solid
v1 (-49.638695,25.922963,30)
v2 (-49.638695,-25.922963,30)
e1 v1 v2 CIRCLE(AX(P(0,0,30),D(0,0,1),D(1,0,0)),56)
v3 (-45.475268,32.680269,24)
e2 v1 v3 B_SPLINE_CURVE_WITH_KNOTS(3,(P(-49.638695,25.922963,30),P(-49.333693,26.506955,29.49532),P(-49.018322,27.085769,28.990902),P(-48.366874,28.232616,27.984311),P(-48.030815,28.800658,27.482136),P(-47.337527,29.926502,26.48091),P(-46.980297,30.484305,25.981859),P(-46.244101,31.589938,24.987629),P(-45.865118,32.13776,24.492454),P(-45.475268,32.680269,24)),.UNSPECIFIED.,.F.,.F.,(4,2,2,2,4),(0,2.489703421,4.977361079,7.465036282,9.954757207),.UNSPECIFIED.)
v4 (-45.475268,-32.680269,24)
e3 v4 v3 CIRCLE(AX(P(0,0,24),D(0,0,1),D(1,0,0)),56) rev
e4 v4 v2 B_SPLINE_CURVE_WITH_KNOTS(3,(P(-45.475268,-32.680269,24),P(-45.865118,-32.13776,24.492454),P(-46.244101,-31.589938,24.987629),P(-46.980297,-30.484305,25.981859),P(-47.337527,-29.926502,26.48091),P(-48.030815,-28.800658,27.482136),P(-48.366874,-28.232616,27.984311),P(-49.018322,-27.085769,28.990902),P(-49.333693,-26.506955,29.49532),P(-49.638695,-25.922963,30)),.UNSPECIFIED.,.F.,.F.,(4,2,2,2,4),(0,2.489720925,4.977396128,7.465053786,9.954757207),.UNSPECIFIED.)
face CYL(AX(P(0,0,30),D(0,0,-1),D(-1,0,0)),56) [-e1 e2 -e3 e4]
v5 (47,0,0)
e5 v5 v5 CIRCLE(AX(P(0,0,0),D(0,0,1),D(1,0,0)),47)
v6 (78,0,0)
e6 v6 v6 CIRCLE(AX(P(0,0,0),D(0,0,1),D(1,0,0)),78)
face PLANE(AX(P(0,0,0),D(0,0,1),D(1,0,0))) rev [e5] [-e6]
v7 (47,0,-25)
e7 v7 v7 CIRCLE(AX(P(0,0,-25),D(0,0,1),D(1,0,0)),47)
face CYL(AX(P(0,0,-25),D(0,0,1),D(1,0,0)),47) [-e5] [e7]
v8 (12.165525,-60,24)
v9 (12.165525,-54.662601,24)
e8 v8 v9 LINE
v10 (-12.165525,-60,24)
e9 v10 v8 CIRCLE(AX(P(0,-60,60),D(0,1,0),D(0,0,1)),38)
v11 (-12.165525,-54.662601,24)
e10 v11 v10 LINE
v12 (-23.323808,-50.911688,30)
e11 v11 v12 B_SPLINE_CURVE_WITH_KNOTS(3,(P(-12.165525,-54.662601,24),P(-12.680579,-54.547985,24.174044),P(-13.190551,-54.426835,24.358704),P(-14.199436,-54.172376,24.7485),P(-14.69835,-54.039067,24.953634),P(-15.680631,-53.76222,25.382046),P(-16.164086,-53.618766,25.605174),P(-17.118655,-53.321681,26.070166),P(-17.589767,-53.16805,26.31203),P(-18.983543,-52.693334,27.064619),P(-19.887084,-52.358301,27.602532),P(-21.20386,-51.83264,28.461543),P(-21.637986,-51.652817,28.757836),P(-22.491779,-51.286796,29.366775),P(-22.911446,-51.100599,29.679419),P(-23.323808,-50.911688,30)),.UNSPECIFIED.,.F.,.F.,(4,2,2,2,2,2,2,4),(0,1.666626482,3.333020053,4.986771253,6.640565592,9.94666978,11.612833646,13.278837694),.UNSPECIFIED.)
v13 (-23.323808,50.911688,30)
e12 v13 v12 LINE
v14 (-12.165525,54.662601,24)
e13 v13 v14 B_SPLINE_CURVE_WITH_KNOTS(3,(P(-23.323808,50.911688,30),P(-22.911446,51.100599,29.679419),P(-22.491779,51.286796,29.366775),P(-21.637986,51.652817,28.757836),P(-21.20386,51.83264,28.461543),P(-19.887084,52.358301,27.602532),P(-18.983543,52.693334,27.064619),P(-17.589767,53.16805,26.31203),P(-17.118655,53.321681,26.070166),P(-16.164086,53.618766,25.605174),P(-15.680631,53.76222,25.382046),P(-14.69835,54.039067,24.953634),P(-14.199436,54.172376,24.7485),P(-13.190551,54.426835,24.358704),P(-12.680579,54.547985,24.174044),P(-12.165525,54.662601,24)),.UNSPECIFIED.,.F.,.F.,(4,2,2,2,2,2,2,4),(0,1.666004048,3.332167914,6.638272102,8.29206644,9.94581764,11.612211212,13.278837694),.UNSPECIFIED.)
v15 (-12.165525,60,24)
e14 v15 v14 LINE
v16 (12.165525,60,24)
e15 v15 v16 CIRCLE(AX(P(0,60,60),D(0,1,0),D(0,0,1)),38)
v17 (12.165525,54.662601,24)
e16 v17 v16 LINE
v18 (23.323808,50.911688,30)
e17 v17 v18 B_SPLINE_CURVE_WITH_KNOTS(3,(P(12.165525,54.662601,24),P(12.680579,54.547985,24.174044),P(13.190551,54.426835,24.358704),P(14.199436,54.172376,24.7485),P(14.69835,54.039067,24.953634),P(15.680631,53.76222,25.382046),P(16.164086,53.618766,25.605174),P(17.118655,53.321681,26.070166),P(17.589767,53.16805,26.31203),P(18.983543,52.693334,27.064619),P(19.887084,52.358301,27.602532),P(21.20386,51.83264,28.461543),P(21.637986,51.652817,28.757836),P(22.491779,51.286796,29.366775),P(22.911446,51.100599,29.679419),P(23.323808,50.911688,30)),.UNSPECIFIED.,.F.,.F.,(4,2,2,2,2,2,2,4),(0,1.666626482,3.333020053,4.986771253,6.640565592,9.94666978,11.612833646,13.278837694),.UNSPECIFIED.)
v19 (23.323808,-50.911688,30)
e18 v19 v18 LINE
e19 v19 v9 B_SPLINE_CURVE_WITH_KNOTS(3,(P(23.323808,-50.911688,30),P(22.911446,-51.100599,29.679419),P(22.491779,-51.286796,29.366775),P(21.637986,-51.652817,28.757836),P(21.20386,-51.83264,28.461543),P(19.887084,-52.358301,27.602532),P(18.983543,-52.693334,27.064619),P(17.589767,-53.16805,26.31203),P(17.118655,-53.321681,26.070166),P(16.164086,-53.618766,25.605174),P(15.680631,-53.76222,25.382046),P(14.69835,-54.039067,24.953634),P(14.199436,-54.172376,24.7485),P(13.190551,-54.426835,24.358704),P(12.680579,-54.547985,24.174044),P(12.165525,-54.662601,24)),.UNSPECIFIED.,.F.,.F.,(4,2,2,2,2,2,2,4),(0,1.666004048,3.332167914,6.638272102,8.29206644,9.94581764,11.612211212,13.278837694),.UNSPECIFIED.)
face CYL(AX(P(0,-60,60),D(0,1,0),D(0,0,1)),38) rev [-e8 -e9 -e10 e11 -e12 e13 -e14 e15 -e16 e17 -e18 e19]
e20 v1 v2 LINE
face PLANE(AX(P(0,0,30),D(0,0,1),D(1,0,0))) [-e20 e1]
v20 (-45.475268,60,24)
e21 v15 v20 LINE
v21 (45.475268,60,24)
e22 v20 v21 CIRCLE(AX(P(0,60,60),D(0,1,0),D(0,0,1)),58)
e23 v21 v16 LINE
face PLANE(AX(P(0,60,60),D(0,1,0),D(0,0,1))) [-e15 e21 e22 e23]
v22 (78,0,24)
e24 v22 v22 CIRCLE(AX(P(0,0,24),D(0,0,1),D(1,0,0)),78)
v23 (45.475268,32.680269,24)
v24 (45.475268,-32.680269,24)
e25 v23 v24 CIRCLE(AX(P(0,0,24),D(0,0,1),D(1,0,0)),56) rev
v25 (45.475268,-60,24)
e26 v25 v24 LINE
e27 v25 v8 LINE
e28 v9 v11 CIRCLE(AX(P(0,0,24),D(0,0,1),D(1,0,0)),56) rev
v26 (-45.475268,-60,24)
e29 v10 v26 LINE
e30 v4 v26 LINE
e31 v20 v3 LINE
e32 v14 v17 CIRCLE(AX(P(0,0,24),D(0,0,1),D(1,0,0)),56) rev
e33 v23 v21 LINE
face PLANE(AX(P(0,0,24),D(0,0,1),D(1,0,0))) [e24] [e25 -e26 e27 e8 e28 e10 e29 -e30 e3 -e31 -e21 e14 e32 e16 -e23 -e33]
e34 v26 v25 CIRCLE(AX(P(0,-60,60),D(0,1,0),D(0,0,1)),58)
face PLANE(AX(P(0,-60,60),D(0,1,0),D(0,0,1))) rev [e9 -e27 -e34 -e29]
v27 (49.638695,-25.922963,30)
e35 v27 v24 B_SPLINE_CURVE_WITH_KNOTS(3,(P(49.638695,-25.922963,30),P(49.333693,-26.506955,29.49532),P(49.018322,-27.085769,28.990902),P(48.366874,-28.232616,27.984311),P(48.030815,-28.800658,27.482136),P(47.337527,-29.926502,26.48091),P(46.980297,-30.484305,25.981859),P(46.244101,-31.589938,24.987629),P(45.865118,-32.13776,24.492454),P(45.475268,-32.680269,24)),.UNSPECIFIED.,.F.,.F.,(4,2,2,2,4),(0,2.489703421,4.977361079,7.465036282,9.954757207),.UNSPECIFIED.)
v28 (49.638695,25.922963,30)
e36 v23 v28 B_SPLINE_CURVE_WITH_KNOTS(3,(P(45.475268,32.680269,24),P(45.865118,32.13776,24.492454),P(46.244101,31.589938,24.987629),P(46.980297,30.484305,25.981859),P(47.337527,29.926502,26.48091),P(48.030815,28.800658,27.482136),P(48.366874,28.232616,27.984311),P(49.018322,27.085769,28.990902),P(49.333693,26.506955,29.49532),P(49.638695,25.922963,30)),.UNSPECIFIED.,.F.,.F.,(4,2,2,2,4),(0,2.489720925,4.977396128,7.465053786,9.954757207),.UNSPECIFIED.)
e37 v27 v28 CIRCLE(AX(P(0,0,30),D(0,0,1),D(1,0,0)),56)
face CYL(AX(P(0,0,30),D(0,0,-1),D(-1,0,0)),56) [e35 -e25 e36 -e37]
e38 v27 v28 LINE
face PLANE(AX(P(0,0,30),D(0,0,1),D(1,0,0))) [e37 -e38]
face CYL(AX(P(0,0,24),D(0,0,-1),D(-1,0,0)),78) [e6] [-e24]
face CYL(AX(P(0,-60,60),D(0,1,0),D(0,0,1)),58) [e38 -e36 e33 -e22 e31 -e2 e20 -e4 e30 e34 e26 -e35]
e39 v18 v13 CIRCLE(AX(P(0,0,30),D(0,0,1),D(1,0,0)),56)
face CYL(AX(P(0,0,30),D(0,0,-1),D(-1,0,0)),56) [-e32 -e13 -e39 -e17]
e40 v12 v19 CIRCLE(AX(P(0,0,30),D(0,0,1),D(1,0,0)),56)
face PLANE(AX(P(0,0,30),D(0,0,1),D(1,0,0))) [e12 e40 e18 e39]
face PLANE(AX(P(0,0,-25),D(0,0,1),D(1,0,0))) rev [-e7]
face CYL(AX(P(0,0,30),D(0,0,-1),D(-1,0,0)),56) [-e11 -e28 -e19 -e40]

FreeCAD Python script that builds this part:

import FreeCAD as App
import Part
import Sketcher
from FreeCAD import Vector
Q = App.Units.Quantity

doc = App.newDocument("Part")
params = doc.addObject("Spreadsheet::Sheet", "Params")
for row, (alias, value) in enumerate([
    ("sketch1_diameter", "94 mm"),
    ("pad1_length", "25 mm"),
    ("sketch2_diameter", "156 mm"),
    ("pad2_length", "24 mm"),
    ("sketch3_diameter", "112 mm"),
    ("pad3_length", "30 mm"),
    ("sketch4_diameter", "116 mm"),
    ("sketch4_diameter2", "76 mm"),
    ("pad4_length", "60 mm"),
    ("pad4_length2", "60 mm"),
], start=1):
    params.set(f"A{row}", alias)
    params.set(f"B{row}", "=" + value)
    params.setAlias(f"B{row}", alias)

body = doc.addObject("PartDesign::Body", "Body")

sketch1 = doc.addObject("Sketcher::SketchObject", "Sketch")
body.addObject(sketch1)
sketch1.AttachmentSupport = (doc.XY_Plane, [""])
sketch1.MapMode = "FlatFace"
sketch1.addGeometry(Part.Circle(Vector(0, 0, 0), Vector(0, 0, 1), 47), False)
sketch1.addConstraint(Sketcher.Constraint("Coincident", 0, 3, -1, 1))
sketch1.addConstraint(Sketcher.Constraint("Diameter", 0, Q("94 mm")))
sketch1.setExpression("Constraints[1]", "Params.sketch1_diameter")
pad1 = doc.addObject("PartDesign::Pad", "Pad")
body.addObject(pad1)
pad1.Profile = sketch1
pad1.setExpression("Length", "Params.pad1_length")
pad1.Reversed = True

sketch2 = doc.addObject("Sketcher::SketchObject", "Sketch001")
body.addObject(sketch2)
sketch2.AttachmentSupport = (doc.XY_Plane, [""])
sketch2.MapMode = "FlatFace"
sketch2.addGeometry(Part.Circle(Vector(0, 0, 0), Vector(0, 0, 1), 78), False)
sketch2.addConstraint(Sketcher.Constraint("Coincident", 0, 3, -1, 1))
sketch2.addConstraint(Sketcher.Constraint("Diameter", 0, Q("156 mm")))
sketch2.setExpression("Constraints[1]", "Params.sketch2_diameter")
pad2 = doc.addObject("PartDesign::Pad", "Pad001")
body.addObject(pad2)
pad2.Profile = sketch2
pad2.setExpression("Length", "Params.pad2_length")

sketch3 = doc.addObject("Sketcher::SketchObject", "Sketch002")
body.addObject(sketch3)
sketch3.AttachmentSupport = (doc.XY_Plane, [""])
sketch3.MapMode = "FlatFace"
sketch3.addGeometry(Part.Circle(Vector(0, 0, 0), Vector(0, 0, 1), 56), False)
sketch3.addConstraint(Sketcher.Constraint("Coincident", 0, 3, -1, 1))
sketch3.addConstraint(Sketcher.Constraint("Diameter", 0, Q("112 mm")))
sketch3.setExpression("Constraints[1]", "Params.sketch3_diameter")
pad3 = doc.addObject("PartDesign::Pad", "Pad002")
body.addObject(pad3)
pad3.Profile = sketch3
pad3.setExpression("Length", "Params.pad3_length")

sketch4 = doc.addObject("Sketcher::SketchObject", "Sketch003")
body.addObject(sketch4)
sketch4.AttachmentSupport = (doc.XZ_Plane, [""])
sketch4.MapMode = "FlatFace"
sketch4.addGeometry(Part.Circle(Vector(0, 60, 0), Vector(0, 0, 1), 58), False)
sketch4.addGeometry(Part.Circle(Vector(0, 60, 0), Vector(0, 0, 1), 38), False)
sketch4.addConstraint(Sketcher.Constraint("Coincident", 1, 3, 0, 3))
sketch4.addConstraint(Sketcher.Constraint("PointOnObject", 0, 3, -2))
sketch4.addConstraint(Sketcher.Constraint("Diameter", 0, Q("116 mm")))
sketch4.addConstraint(Sketcher.Constraint("Diameter", 1, Q("76 mm")))
sketch4.addConstraint(Sketcher.Constraint("DistanceY", -1, 1, 0, 3, Q("60 mm")))
sketch4.setExpression("Constraints[2]", "Params.sketch4_diameter")
sketch4.setExpression("Constraints[3]", "Params.sketch4_diameter2")
pad4 = doc.addObject("PartDesign::Pad", "Pad003")
body.addObject(pad4)
pad4.Profile = sketch4
pad4.Type = "TwoLengths"
pad4.setExpression("Length", "Params.pad4_length")
pad4.setExpression("Length2", "Params.pad4_length2")
pad4.Reversed = True

doc.recompute()
